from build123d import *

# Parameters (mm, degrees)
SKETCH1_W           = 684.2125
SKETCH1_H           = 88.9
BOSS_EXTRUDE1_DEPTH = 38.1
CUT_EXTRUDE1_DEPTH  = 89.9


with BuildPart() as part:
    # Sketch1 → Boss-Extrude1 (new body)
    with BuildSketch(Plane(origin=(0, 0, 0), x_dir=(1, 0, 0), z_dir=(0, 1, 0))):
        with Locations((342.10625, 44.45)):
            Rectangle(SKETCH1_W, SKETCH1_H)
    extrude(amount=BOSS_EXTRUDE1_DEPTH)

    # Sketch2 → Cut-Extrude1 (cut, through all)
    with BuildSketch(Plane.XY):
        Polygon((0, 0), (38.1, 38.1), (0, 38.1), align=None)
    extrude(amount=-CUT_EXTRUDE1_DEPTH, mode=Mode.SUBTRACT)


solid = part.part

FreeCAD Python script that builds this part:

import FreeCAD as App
import Part
import Sketcher
Q = App.Units.Quantity

doc = App.newDocument("Part")
params = doc.addObject("Spreadsheet::Sheet", "Params")
for row, (alias, value) in enumerate([
    ("sketch1_height", "3.5 in"),
    ("sketch1_width", "26.9375 in"),
    ("pad1_length", "1.5 in"),
    ("sketch2_width", "1.5 in"),
], start=1):
    params.set(f"A{row}", alias)
    params.set(f"B{row}", "=" + value)
    params.setAlias(f"B{row}", alias)

body = doc.addObject("PartDesign::Body", "Body")

# Sketch on XZ plane
sketch1 = body.newObject("Sketcher::SketchObject", "Sketch")
sketch1.AttachmentSupport = (doc.getObject("XZ_Plane"), [""])
sketch1.MapMode = "FlatFace"
sketch1.addGeometry([
    Part.LineSegment(App.Vector(0, -89, 0), App.Vector(0, 0, 0)),
    Part.LineSegment(App.Vector(0, 0, 0), App.Vector(684, 0, 0)),
    Part.LineSegment(App.Vector(684, 0, 0), App.Vector(684, -89, 0)),
    Part.LineSegment(App.Vector(684, -89, 0), App.Vector(0, -89, 0)),
], False)
sketch1.addConstraint([
    Sketcher.Constraint("Coincident", 0, 2, 1, 1),
    Sketcher.Constraint("Coincident", 1, 2, 2, 1),
    Sketcher.Constraint("Coincident", 2, 2, 3, 1),
    Sketcher.Constraint("Coincident", 3, 2, 0, 1),
    Sketcher.Constraint("Vertical", 0),
    Sketcher.Constraint("Horizontal", 1),
    Sketcher.Constraint("Vertical", 2),
    Sketcher.Constraint("Horizontal", 3),
    Sketcher.Constraint("Coincident", 0, 2, -1, 1),
    Sketcher.Constraint("DistanceY", 0, 1, 0, 2, Q("3.5 in")),
    Sketcher.Constraint("DistanceX", 1, 1, 1, 2, Q("26.9375 in")),
])
sketch1.setExpression("Constraints[9]", "Params.sketch1_height")
sketch1.setExpression("Constraints[10]", "Params.sketch1_width")
pad1 = body.newObject("PartDesign::Pad", "Pad")
pad1.Profile = sketch1
pad1.setExpression("Length", "Params.pad1_length")
pad1.Reversed = True

# Sketch on XY plane
sketch2 = body.newObject("Sketcher::SketchObject", "Sketch001")
sketch2.AttachmentSupport = (doc.getObject("XY_Plane"), [""])
sketch2.MapMode = "FlatFace"
sketch2.addGeometry([
    Part.LineSegment(App.Vector(0, 0, 0), App.Vector(38, 38, 0)),
    Part.LineSegment(App.Vector(38, 38, 0), App.Vector(0, 38, 0)),
    Part.LineSegment(App.Vector(0, 38, 0), App.Vector(0, 0, 0)),
], False)
sketch2.addConstraint([
    Sketcher.Constraint("Coincident", 0, 2, 1, 1),
    Sketcher.Constraint("Coincident", 1, 2, 2, 1),
    Sketcher.Constraint("Coincident", 2, 2, 0, 1),
    Sketcher.Constraint("Horizontal", 1),
    Sketcher.Constraint("Vertical", 2),
    Sketcher.Constraint("Coincident", 2, 2, -1, 1),
    Sketcher.Constraint("Equal", 1, 2),
    Sketcher.Constraint("DistanceX", 1, 2, 1, 1, Q("1.5 in")),
])
sketch2.setExpression("Constraints[7]", "Params.sketch2_width")
pocket1 = body.newObject("PartDesign::Pocket", "Pocket")
pocket1.Profile = sketch2
pocket1.Type = "ThroughAll"

doc.recompute()
